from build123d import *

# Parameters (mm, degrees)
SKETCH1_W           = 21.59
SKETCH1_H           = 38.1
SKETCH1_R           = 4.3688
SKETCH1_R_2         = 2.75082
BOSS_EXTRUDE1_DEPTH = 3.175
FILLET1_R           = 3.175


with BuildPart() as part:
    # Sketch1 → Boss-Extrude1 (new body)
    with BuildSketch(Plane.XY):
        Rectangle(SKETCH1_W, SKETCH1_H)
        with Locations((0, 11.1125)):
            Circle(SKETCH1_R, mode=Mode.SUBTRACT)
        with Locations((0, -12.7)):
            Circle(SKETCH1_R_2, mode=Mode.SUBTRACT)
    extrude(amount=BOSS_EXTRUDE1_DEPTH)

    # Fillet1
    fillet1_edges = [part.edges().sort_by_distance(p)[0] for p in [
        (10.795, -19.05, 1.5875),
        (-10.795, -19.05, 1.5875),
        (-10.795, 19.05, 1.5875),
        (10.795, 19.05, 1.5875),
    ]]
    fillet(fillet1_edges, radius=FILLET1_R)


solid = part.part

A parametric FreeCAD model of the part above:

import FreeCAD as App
import Part
import Sketcher
from FreeCAD import Vector
Q = App.Units.Quantity


def edges_at(feature, points):
    """Names of the edges that pass closest to the given points."""
    edges = feature.Shape.Edges
    near = lambda p: min(range(len(edges)), key=lambda i: edges[i].distToShape(Part.Vertex(*p))[0])
    return sorted({f"Edge{near(p) + 1}" for p in points})


def add_polygon(sketch, points):
    """Adds a closed chain of lines whose ends are joined by coincident constraints."""
    first, n = sketch.GeometryCount, len(points)
    for a, b in zip(points, points[1:] + points[:1]):
        sketch.addGeometry(Part.LineSegment(App.Vector(*a, 0), App.Vector(*b, 0)), False)
    for i in range(n):
        sketch.addConstraint(Sketcher.Constraint("Coincident", first + i, 2, first + (i + 1) % n, 1))

doc = App.newDocument("Part")
params = doc.addObject("Spreadsheet::Sheet", "Params")
for row, (alias, value) in enumerate([
    ("sketch1_diameter", "0.344 in"),
    ("sketch1_height", "1.5 in"),
    ("sketch1_width", "0.85 in"),
    ("pad1_length", "0.125 in"),
    ("fillet_radius", "0.125 in"),
], start=1):
    params.set(f"A{row}", alias)
    params.set(f"B{row}", "=" + value)
    params.setAlias(f"B{row}", alias)

body = doc.addObject("PartDesign::Body", "Body")

sketch1 = doc.addObject("Sketcher::SketchObject", "Sketch")
body.addObject(sketch1)
sketch1.AttachmentSupport = (doc.XY_Plane, [""])
sketch1.MapMode = "FlatFace"
add_polygon(sketch1, [(-10.795, 19.05), (-10.795, -19.05), (10.795, -19.05), (10.795, 19.05)])
sketch1.addGeometry(Part.Circle(Vector(0, -12.7, 0), Vector(0, 0, 1), 2.75082), False)
sketch1.addGeometry(Part.Circle(Vector(0, 11.1125, 0), Vector(0, 0, 1), 4.3688), False)
sketch1.addConstraint(Sketcher.Constraint("Vertical", 0))
sketch1.addConstraint(Sketcher.Constraint("Horizontal", 1))
sketch1.addConstraint(Sketcher.Constraint("Vertical", 2))
sketch1.addConstraint(Sketcher.Constraint("Horizontal", 3))
sketch1.addConstraint(Sketcher.Constraint("Symmetric", 0, 2, 2, 2, -1, 1))
sketch1.addConstraint(Sketcher.Constraint("PointOnObject", 4, 3, -2))
sketch1.addConstraint(Sketcher.Constraint("PointOnObject", 5, 3, -2))
sketch1.addConstraint(Sketcher.Constraint("Diameter", 5, Q("0.344 in")))
sketch1.addConstraint(Sketcher.Constraint("DistanceY", 0, 2, 0, 1, Q("1.5 in")))
sketch1.addConstraint(Sketcher.Constraint("Diameter", 4, Q("0.2166 in")))
sketch1.addConstraint(Sketcher.Constraint("DistanceX", 1, 1, 1, 2, Q("0.85 in")))
sketch1.addConstraint(Sketcher.Constraint("DistanceY", 4, 3, -1, 1, Q("0.5 in")))
sketch1.addConstraint(Sketcher.Constraint("DistanceY", -1, 1, 5, 3, Q("0.4375 in")))
sketch1.setExpression("Constraints[11]", "Params.sketch1_diameter")
sketch1.setExpression("Constraints[12]", "Params.sketch1_height")
sketch1.setExpression("Constraints[14]", "Params.sketch1_width")
pad1 = doc.addObject("PartDesign::Pad", "Pad")
body.addObject(pad1)
pad1.Profile = sketch1
pad1.setExpression("Length", "Params.pad1_length")
doc.recompute()

fillet = doc.addObject("PartDesign::Fillet", "Fillet")
body.addObject(fillet)
fillet.Base = (pad1, edges_at(pad1, [
    (10.795, -19.05, 1.587),
    (-10.795, -19.05, 1.587),
    (-10.795, 19.05, 1.587),
    (10.795, 19.05, 1.587),
]))
fillet.setExpression("Radius", "Params.fillet_radius")

doc.recompute()
